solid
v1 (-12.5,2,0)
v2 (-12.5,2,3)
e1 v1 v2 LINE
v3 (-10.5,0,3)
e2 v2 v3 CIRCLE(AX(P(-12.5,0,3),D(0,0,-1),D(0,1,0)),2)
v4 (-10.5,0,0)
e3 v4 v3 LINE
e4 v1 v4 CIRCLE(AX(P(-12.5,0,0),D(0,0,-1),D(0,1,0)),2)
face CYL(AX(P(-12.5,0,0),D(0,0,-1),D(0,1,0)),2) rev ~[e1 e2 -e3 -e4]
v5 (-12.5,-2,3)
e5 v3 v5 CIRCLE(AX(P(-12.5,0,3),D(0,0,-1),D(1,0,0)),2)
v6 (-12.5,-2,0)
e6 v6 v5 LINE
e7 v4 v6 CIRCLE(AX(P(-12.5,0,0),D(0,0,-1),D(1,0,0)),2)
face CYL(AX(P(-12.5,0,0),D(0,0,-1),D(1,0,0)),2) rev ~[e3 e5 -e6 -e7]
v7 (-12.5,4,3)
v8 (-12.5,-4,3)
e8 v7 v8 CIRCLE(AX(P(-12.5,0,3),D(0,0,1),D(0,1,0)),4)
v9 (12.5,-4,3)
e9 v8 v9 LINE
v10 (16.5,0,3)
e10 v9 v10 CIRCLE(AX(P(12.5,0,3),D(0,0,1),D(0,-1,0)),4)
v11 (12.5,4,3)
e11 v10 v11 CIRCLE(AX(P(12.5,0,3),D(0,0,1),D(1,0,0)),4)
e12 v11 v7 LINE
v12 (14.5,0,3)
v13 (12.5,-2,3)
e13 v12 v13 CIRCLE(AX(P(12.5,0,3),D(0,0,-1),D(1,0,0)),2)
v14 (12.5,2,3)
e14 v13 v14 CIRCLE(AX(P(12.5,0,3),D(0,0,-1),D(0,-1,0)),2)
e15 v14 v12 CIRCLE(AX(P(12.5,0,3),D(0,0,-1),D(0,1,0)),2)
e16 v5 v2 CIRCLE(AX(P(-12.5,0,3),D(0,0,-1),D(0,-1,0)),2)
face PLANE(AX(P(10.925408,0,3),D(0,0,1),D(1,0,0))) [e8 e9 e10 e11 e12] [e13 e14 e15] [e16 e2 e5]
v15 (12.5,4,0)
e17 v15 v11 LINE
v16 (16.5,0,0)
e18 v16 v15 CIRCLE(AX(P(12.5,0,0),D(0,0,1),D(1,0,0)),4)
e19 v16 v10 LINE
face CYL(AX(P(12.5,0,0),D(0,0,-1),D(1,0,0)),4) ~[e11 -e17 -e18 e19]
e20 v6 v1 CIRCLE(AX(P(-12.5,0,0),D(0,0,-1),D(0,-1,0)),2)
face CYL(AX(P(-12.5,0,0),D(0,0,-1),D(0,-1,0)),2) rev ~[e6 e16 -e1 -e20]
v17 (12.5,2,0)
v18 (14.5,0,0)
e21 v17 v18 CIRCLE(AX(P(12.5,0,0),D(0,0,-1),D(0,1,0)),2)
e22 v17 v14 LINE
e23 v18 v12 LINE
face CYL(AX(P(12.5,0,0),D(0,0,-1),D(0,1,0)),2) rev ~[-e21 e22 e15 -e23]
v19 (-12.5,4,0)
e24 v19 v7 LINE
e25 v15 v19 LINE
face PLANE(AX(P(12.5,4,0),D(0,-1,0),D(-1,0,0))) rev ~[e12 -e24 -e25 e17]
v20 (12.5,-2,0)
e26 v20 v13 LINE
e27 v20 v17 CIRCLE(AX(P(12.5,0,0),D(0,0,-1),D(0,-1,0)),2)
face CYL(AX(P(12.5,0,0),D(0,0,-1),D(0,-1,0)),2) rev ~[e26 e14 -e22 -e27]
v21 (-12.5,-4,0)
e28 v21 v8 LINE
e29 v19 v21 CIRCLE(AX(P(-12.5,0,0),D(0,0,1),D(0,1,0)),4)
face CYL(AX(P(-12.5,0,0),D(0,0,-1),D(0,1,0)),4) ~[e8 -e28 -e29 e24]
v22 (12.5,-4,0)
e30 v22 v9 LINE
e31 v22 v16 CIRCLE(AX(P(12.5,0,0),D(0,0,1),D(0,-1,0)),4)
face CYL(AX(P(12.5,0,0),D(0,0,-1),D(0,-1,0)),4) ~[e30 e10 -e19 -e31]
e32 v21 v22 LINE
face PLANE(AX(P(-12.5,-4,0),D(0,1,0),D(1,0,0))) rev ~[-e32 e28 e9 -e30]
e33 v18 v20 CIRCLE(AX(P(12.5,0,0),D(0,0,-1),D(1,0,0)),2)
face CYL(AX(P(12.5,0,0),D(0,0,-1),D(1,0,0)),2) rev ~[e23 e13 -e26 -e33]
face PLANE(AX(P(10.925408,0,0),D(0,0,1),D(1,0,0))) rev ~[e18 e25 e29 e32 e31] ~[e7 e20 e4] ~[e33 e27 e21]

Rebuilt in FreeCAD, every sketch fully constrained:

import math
import FreeCAD as App
import Part
import Sketcher
from FreeCAD import Vector
Q = App.Units.Quantity

doc = App.newDocument("Part")
body = doc.addObject("PartDesign::Body", "Body")

# Sketch on XY plane
sketch1 = body.newObject("Sketcher::SketchObject", "Sketch")
sketch1.AttachmentSupport = (doc.getObject("XY_Plane"), [""])
sketch1.MapMode = "FlatFace"
sketch1.addGeometry([
    Part.LineSegment(Vector(12.5, 4, 0), Vector(-12.5, 4, 0)),  # 0
    Part.ArcOfCircle(Part.Circle(Vector(-12.5, 0, 0), Vector(0, 0, 1), 4), math.radians(90), math.radians(270)),  # 1
    Part.LineSegment(Vector(-12.5, -4, 0), Vector(12.5, -4, 0)),  # 2
    Part.ArcOfCircle(Part.Circle(Vector(12.5, 0, 0), Vector(0, 0, 1), 4), math.radians(-90), math.radians(0)),  # 3
    Part.ArcOfCircle(Part.Circle(Vector(12.5, 0, 0), Vector(0, 0, 1), 4), math.radians(0), math.radians(90)),  # 4
    Part.ArcOfCircle(Part.Circle(Vector(12.5, 0, 0), Vector(0, 0, 1), 2), math.radians(90), math.radians(270)),  # 5
    Part.ArcOfCircle(Part.Circle(Vector(12.5, 0, 0), Vector(0, 0, 1), 2), math.radians(0), math.radians(90)),  # 6
    Part.ArcOfCircle(Part.Circle(Vector(12.5, 0, 0), Vector(0, 0, 1), 2), math.radians(-90), math.radians(0)),  # 7
    Part.ArcOfCircle(Part.Circle(Vector(-12.5, 0, 0), Vector(0, 0, 1), 2), math.radians(0), math.radians(90)),  # 8
    Part.ArcOfCircle(Part.Circle(Vector(-12.5, 0, 0), Vector(0, 0, 1), 2), math.radians(-90), math.radians(0)),  # 9
    Part.ArcOfCircle(Part.Circle(Vector(-12.5, 0, 0), Vector(0, 0, 1), 2), math.radians(90), math.radians(270)),  # 10
], False)
sketch1.addConstraint([
    Sketcher.Constraint("Tangent", 0, 2, 1, 1),
    Sketcher.Constraint("Tangent", 1, 2, 2, 1),
    Sketcher.Constraint("Tangent", 2, 2, 3, 1),
    Sketcher.Constraint("Tangent", 3, 2, 4, 1),
    Sketcher.Constraint("Tangent", 4, 2, 0, 1),
    Sketcher.Constraint("Tangent", 5, 1, 6, 2),
    Sketcher.Constraint("Tangent", 6, 1, 7, 2),
    Sketcher.Constraint("Tangent", 7, 1, 5, 2),
    Sketcher.Constraint("Tangent", 8, 1, 9, 2),
    Sketcher.Constraint("Tangent", 9, 1, 10, 2),
    Sketcher.Constraint("Tangent", 10, 1, 8, 2),
    Sketcher.Constraint("Horizontal", 0),
    Sketcher.Constraint("Horizontal", 2),
    Sketcher.Constraint("Coincident", 5, 3, 3, 3),
    Sketcher.Constraint("Coincident", 8, 3, 1, 3),
    Sketcher.Constraint("Equal", 1, 3),
    Sketcher.Constraint("Equal", 7, 8),
    Sketcher.Constraint("Symmetric", 1, 3, 3, 3, -1, 1),
    Sketcher.Constraint("PointOnObject", 3, 2, -1),
    Sketcher.Constraint("PointOnObject", 6, 1, -1),
    Sketcher.Constraint("PointOnObject", 8, 1, -1),
    Sketcher.Constraint("Vertical", 4, 2, 5, 1),
    Sketcher.Constraint("Vertical", 5, 1, 7, 1),
    Sketcher.Constraint("Vertical", 1, 2, 9, 1),
    Sketcher.Constraint("Vertical", 9, 1, 10, 1),
    Sketcher.Constraint("Radius", 1, Q("4 mm")),
    Sketcher.Constraint("Radius", 5, Q("2 mm")),
    Sketcher.Constraint("DistanceX", 0, 2, 0, 1, Q("25 mm")),
])
pad1 = body.newObject("PartDesign::Pad", "Pad")
pad1.Profile = sketch1
pad1.Length = 3

doc.recompute()
